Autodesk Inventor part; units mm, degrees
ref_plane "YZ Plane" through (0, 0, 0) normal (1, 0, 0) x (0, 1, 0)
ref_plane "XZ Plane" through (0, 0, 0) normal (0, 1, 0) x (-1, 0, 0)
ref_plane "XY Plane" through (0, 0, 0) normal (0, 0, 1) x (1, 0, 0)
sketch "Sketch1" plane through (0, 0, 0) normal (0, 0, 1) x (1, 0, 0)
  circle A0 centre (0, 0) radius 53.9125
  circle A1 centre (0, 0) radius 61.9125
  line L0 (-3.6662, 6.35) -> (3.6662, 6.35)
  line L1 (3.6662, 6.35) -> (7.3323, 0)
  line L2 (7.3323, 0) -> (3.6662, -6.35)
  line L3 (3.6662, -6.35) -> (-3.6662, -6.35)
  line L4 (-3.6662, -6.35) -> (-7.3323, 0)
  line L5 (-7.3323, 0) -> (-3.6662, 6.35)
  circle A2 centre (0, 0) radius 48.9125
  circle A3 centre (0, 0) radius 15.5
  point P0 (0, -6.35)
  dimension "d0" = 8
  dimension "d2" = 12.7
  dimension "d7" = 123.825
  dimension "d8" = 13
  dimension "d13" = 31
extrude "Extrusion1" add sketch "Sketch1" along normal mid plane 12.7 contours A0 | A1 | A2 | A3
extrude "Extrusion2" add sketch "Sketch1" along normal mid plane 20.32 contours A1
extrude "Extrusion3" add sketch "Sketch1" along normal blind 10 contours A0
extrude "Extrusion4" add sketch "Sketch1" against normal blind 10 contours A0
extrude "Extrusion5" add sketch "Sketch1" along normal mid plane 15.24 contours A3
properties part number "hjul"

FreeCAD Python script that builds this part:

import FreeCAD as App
import Part
import Sketcher
Q = App.Units.Quantity

doc = App.newDocument("Part")
body = doc.addObject("PartDesign::Body", "Body")

sketch1 = doc.addObject("Sketcher::SketchObject", "Sketch")
body.addObject(sketch1)
sketch1.AttachmentSupport = (doc.XY_Plane, [""])
sketch1.MapMode = "FlatFace"
sketch1.addGeometry(Part.Circle(App.Vector(0, 0, 0), App.Vector(0, 0, 1), 61.9125), False)
sketch1.addGeometry(Part.LineSegment(App.Vector(-3.6662, 6.35, 0), App.Vector(3.6662, 6.35, 0)), False)
sketch1.addGeometry(Part.LineSegment(App.Vector(3.6662, 6.35, 0), App.Vector(7.3323, 0, 0)), False)
sketch1.addGeometry(Part.LineSegment(App.Vector(7.3323, 0, 0), App.Vector(3.6662, -6.35, 0)), False)
sketch1.addGeometry(Part.LineSegment(App.Vector(3.6662, -6.35, 0), App.Vector(-3.6662, -6.35, 0)), False)
sketch1.addGeometry(Part.LineSegment(App.Vector(-3.6662, -6.35, 0), App.Vector(-7.3323, 0, 0)), False)
sketch1.addGeometry(Part.LineSegment(App.Vector(-7.3323, 0, 0), App.Vector(-3.6662, 6.35, 0)), False)
sketch1.addConstraint(Sketcher.Constraint("Coincident", 1, 2, 2, 1))
sketch1.addConstraint(Sketcher.Constraint("Coincident", 2, 2, 3, 1))
sketch1.addConstraint(Sketcher.Constraint("Coincident", 3, 2, 4, 1))
sketch1.addConstraint(Sketcher.Constraint("Coincident", 4, 2, 5, 1))
sketch1.addConstraint(Sketcher.Constraint("Coincident", 5, 2, 6, 1))
sketch1.addConstraint(Sketcher.Constraint("Coincident", 6, 2, 1, 1))
sketch1.addConstraint(Sketcher.Constraint("Horizontal", 1))
sketch1.addConstraint(Sketcher.Constraint("Horizontal", 4))
sketch1.addConstraint(Sketcher.Constraint("Coincident", 0, 3, -1, 1))
sketch1.addConstraint(Sketcher.Constraint("Symmetric", 1, 2, 4, 2, -1, 1))
sketch1.addConstraint(Sketcher.Constraint("Symmetric", 2, 2, 5, 2, -1, 1))
sketch1.addConstraint(Sketcher.Constraint("PointOnObject", 2, 2, -1))
sketch1.addConstraint(Sketcher.Constraint("Parallel", 3, 6))
sketch1.addConstraint(Sketcher.Constraint("Vertical", 1, 2, 3, 2))
sketch1.addConstraint(Sketcher.Constraint("Diameter", 0, Q("4.875 in")))
sketch1.addConstraint(Sketcher.Constraint("DistanceY", 3, 2, 1, 2, Q("0.5 in")))
sketch1.addConstraint(Sketcher.Constraint("Angle", 2, Q("-60.0005 deg")))
sketch1.addConstraint(Sketcher.Constraint("DistanceX", 4, 2, 2, 2, Q("0.433 in")))
pad1 = doc.addObject("PartDesign::Pad", "Pad")
body.addObject(pad1)
pad1.Profile = sketch1
pad1.Length = Q("0.5 in")
pad1.Midplane = True

sketch2 = doc.addObject("Sketcher::SketchObject", "Sketch001")
body.addObject(sketch2)
sketch2.AttachmentSupport = (doc.XY_Plane, [""])
sketch2.MapMode = "FlatFace"
sketch2.addGeometry(Part.Circle(App.Vector(0, 0, 0), App.Vector(0, 0, 1), 61.9125), False)
sketch2.addGeometry(Part.Circle(App.Vector(0, 0, 0), App.Vector(0, 0, 1), 53.9125), False)
sketch2.addConstraint(Sketcher.Constraint("Coincident", 0, 3, -1, 1))
sketch2.addConstraint(Sketcher.Constraint("Coincident", 1, 3, -1, 1))
sketch2.addConstraint(Sketcher.Constraint("Diameter", 0, Q("4.875 in")))
sketch2.addConstraint(Sketcher.Constraint("Diameter", 1, Q("107.825 mm")))
pad2 = doc.addObject("PartDesign::Pad", "Pad001")
body.addObject(pad2)
pad2.Profile = sketch2
pad2.Length = Q("0.8 in")
pad2.Midplane = True

sketch3 = doc.addObject("Sketcher::SketchObject", "Sketch002")
body.addObject(sketch3)
sketch3.AttachmentSupport = (doc.XY_Plane, [""])
sketch3.MapMode = "FlatFace"
sketch3.addGeometry(Part.Circle(App.Vector(0, 0, 0), App.Vector(0, 0, 1), 53.9125), False)
sketch3.addGeometry(Part.Circle(App.Vector(0, 0, 0), App.Vector(0, 0, 1), 48.9125), False)
sketch3.addConstraint(Sketcher.Constraint("Coincident", 0, 3, -1, 1))
sketch3.addConstraint(Sketcher.Constraint("Coincident", 1, 3, -1, 1))
sketch3.addConstraint(Sketcher.Constraint("Diameter", 0, Q("107.825 mm")))
sketch3.addConstraint(Sketcher.Constraint("Diameter", 1, Q("97.825 mm")))
pad3 = doc.addObject("PartDesign::Pad", "Pad002")
body.addObject(pad3)
pad3.Profile = sketch3
pad3.Length = Q("0.3937008 in")

sketch4 = doc.addObject("Sketcher::SketchObject", "Sketch003")
body.addObject(sketch4)
sketch4.AttachmentSupport = (doc.XY_Plane, [""])
sketch4.MapMode = "FlatFace"
sketch4.addGeometry(Part.Circle(App.Vector(0, 0, 0), App.Vector(0, 0, 1), 53.9125), False)
sketch4.addGeometry(Part.Circle(App.Vector(0, 0, 0), App.Vector(0, 0, 1), 48.9125), False)
sketch4.addConstraint(Sketcher.Constraint("Coincident", 0, 3, -1, 1))
sketch4.addConstraint(Sketcher.Constraint("Coincident", 1, 3, -1, 1))
sketch4.addConstraint(Sketcher.Constraint("Diameter", 0, Q("107.825 mm")))
sketch4.addConstraint(Sketcher.Constraint("Diameter", 1, Q("97.825 mm")))
pad4 = doc.addObject("PartDesign::Pad", "Pad003")
body.addObject(pad4)
pad4.Profile = sketch4
pad4.Length = Q("0.3937008 in")
pad4.Reversed = True

sketch5 = doc.addObject("Sketcher::SketchObject", "Sketch004")
body.addObject(sketch5)
sketch5.AttachmentSupport = (doc.XY_Plane, [""])
sketch5.MapMode = "FlatFace"
sketch5.addGeometry(Part.Circle(App.Vector(0, 0, 0), App.Vector(0, 0, 1), 15.5), False)
sketch5.addGeometry(Part.LineSegment(App.Vector(-7.3323, 0, 0), App.Vector(-3.6662, 6.35, 0)), False)
sketch5.addGeometry(Part.LineSegment(App.Vector(-3.6662, 6.35, 0), App.Vector(3.6662, 6.35, 0)), False)
sketch5.addGeometry(Part.LineSegment(App.Vector(3.6662, 6.35, 0), App.Vector(7.3323, 0, 0)), False)
sketch5.addGeometry(Part.LineSegment(App.Vector(7.3323, 0, 0), App.Vector(3.6662, -6.35, 0)), False)
sketch5.addGeometry(Part.LineSegment(App.Vector(3.6662, -6.35, 0), App.Vector(-3.6662, -6.35, 0)), False)
sketch5.addGeometry(Part.LineSegment(App.Vector(-3.6662, -6.35, 0), App.Vector(-7.3323, 0, 0)), False)
sketch5.addConstraint(Sketcher.Constraint("Coincident", 1, 2, 2, 1))
sketch5.addConstraint(Sketcher.Constraint("Coincident", 2, 2, 3, 1))
sketch5.addConstraint(Sketcher.Constraint("Coincident", 3, 2, 4, 1))
sketch5.addConstraint(Sketcher.Constraint("Coincident", 4, 2, 5, 1))
sketch5.addConstraint(Sketcher.Constraint("Coincident", 5, 2, 6, 1))
sketch5.addConstraint(Sketcher.Constraint("Coincident", 6, 2, 1, 1))
sketch5.addConstraint(Sketcher.Constraint("Horizontal", 2))
sketch5.addConstraint(Sketcher.Constraint("Horizontal", 5))
sketch5.addConstraint(Sketcher.Constraint("Coincident", 0, 3, -1, 1))
sketch5.addConstraint(Sketcher.Constraint("Symmetric", 1, 2, 4, 2, -1, 1))
sketch5.addConstraint(Sketcher.Constraint("Symmetric", 3, 2, 6, 2, -1, 1))
sketch5.addConstraint(Sketcher.Constraint("PointOnObject", 3, 2, -1))
sketch5.addConstraint(Sketcher.Constraint("Parallel", 3, 6))
sketch5.addConstraint(Sketcher.Constraint("Vertical", 2, 2, 4, 2))
sketch5.addConstraint(Sketcher.Constraint("DistanceY", 4, 2, 2, 2, Q("0.5 in")))
sketch5.addConstraint(Sketcher.Constraint("Diameter", 0, Q("31 mm")))
sketch5.addConstraint(Sketcher.Constraint("Angle", 1, Q("60.0005 deg")))
sketch5.addConstraint(Sketcher.Constraint("DistanceX", 1, 2, 3, 2, Q("0.433 in")))
pad5 = doc.addObject("PartDesign::Pad", "Pad004")
body.addObject(pad5)
pad5.Profile = sketch5
pad5.Length = Q("0.6 in")
pad5.Midplane = True

doc.recompute()
